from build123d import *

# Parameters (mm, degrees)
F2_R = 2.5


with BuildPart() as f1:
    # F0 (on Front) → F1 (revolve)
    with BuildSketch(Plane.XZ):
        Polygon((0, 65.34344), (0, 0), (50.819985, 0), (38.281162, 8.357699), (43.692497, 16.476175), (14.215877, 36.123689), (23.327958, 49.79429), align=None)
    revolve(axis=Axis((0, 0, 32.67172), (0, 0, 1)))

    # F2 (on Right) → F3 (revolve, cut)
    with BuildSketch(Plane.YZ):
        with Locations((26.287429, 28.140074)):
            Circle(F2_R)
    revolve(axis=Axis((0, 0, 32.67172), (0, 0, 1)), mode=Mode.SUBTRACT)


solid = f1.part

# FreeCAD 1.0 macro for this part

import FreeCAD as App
import Part
import Sketcher
from FreeCAD import Vector
Q = App.Units.Quantity

doc = App.newDocument("Part")
body = doc.addObject("PartDesign::Body", "Body")

sketch1 = doc.addObject("Sketcher::SketchObject", "Sketch")
body.addObject(sketch1)
sketch1.AttachmentSupport = (doc.XZ_Plane, [""])
sketch1.MapMode = "FlatFace"
sketch1.addGeometry([
    Part.LineSegment(Vector(0, 65, 0), Vector(0, 0, 0)),
    Part.LineSegment(Vector(0, 0, 0), Vector(51, 0, 0)),
    Part.LineSegment(Vector(51, 0, 0), Vector(38, 8, 0)),
    Part.LineSegment(Vector(38, 8, 0), Vector(44, 16, 0)),
    Part.LineSegment(Vector(44, 16, 0), Vector(14, 36, 0)),
    Part.LineSegment(Vector(14, 36, 0), Vector(23, 50, 0)),
    Part.LineSegment(Vector(23, 50, 0), Vector(0, 65, 0)),
], False)
sketch1.addConstraint([
    Sketcher.Constraint("Coincident", 0, 2, 1, 1),
    Sketcher.Constraint("Coincident", 1, 2, 2, 1),
    Sketcher.Constraint("Coincident", 2, 2, 3, 1),
    Sketcher.Constraint("Coincident", 3, 2, 4, 1),
    Sketcher.Constraint("Coincident", 4, 2, 5, 1),
    Sketcher.Constraint("Coincident", 5, 2, 6, 1),
    Sketcher.Constraint("Coincident", 6, 2, 0, 1),
    Sketcher.Constraint("Vertical", 0),
    Sketcher.Constraint("Horizontal", 1),
    Sketcher.Constraint("Coincident", 0, 2, -1, 1),
    Sketcher.Constraint("Perpendicular", 2, 3),
    Sketcher.Constraint("Perpendicular", 3, 4),
    Sketcher.Constraint("Perpendicular", 4, 5),
    Sketcher.Constraint("Perpendicular", 5, 6),
    Sketcher.Constraint("Distance", 5, Q("16.429101 mm")),
    Sketcher.Constraint("DistanceY", 0, 2, 0, 1, Q("65.34344 mm")),
    Sketcher.Constraint("DistanceY", -1, 1, 2, 2, Q("8.357699 mm")),
    Sketcher.Constraint("DistanceY", 4, 2, 5, 2, Q("13.670601 mm")),
    Sketcher.Constraint("Distance", 3, Q("9.756649 mm")),
    Sketcher.Constraint("Distance", 4, Q("35.42451 mm")),
])
revolution = doc.addObject("PartDesign::Revolution", "Revolution")
body.addObject(revolution)
revolution.Profile = sketch1
revolution.ReferenceAxis = (sketch1, ["V_Axis"])
revolution.Angle = 360

sketch2 = doc.addObject("Sketcher::SketchObject", "Sketch001")
body.addObject(sketch2)
sketch2.AttachmentSupport = (doc.YZ_Plane, [""])
sketch2.MapMode = "FlatFace"
sketch2.addGeometry(Part.Circle(Vector(26.3, 28.1, 0), Vector(0, 0, 1), 2.5), False)
sketch2.addConstraint([
    Sketcher.Constraint("Diameter", 0, Q("5 mm")),
    Sketcher.Constraint("DistanceX", -1, 1, 0, 3, Q("26.287429 mm")),
    Sketcher.Constraint("DistanceY", -1, 1, 0, 3, Q("28.140074 mm")),
])
groove = doc.addObject("PartDesign::Groove", "Groove")
body.addObject(groove)
groove.Profile = sketch2
groove.ReferenceAxis = (sketch2, ["V_Axis"])
groove.Angle = 360

doc.recompute()
